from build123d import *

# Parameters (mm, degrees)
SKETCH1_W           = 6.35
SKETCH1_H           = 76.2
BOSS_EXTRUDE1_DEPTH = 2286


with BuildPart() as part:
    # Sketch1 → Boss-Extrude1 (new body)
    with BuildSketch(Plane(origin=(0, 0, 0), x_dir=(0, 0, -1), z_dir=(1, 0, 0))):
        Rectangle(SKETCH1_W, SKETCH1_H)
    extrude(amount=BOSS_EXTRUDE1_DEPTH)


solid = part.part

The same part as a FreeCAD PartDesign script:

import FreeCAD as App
import Part
import Sketcher
from FreeCAD import Vector
Q = App.Units.Quantity

doc = App.newDocument("Part")
params = doc.addObject("Spreadsheet::Sheet", "Params")
for row, (alias, value) in enumerate([
    ("sketch1_width", "3 in"),
    ("sketch1_height", "0.25 in"),
    ("pad1_length", "90 in"),
], start=1):
    params.set(f"A{row}", alias)
    params.set(f"B{row}", "=" + value)
    params.setAlias(f"B{row}", alias)

body = doc.addObject("PartDesign::Body", "Body")

sketch1 = body.newObject("Sketcher::SketchObject", "Sketch")
sketch1.AttachmentSupport = (doc.getObject("YZ_Plane"), [""])
sketch1.MapMode = "FlatFace"
sketch1.addGeometry([
    Part.LineSegment(Vector(38.1, 3.175, 0), Vector(-38.1, 3.175, 0)),
    Part.LineSegment(Vector(-38.1, 3.175, 0), Vector(-38.1, -3.175, 0)),
    Part.LineSegment(Vector(-38.1, -3.175, 0), Vector(38.1, -3.175, 0)),
    Part.LineSegment(Vector(38.1, -3.175, 0), Vector(38.1, 3.175, 0)),
], False)
sketch1.addConstraint([
    Sketcher.Constraint("Coincident", 0, 2, 1, 1),
    Sketcher.Constraint("Coincident", 1, 2, 2, 1),
    Sketcher.Constraint("Coincident", 2, 2, 3, 1),
    Sketcher.Constraint("Coincident", 3, 2, 0, 1),
    Sketcher.Constraint("Horizontal", 0),
    Sketcher.Constraint("Vertical", 1),
    Sketcher.Constraint("Horizontal", 2),
    Sketcher.Constraint("Vertical", 3),
    Sketcher.Constraint("Symmetric", 0, 2, 2, 2, -1, 1),
    Sketcher.Constraint("DistanceX", 0, 2, 0, 1, Q("3 in")),
    Sketcher.Constraint("DistanceY", 1, 2, 1, 1, Q("0.25 in")),
])
sketch1.setExpression("Constraints[9]", "Params.sketch1_width")
sketch1.setExpression("Constraints[10]", "Params.sketch1_height")
pad1 = body.newObject("PartDesign::Pad", "Pad")
pad1.Profile = sketch1
pad1.setExpression("Length", "Params.pad1_length")

doc.recompute()
